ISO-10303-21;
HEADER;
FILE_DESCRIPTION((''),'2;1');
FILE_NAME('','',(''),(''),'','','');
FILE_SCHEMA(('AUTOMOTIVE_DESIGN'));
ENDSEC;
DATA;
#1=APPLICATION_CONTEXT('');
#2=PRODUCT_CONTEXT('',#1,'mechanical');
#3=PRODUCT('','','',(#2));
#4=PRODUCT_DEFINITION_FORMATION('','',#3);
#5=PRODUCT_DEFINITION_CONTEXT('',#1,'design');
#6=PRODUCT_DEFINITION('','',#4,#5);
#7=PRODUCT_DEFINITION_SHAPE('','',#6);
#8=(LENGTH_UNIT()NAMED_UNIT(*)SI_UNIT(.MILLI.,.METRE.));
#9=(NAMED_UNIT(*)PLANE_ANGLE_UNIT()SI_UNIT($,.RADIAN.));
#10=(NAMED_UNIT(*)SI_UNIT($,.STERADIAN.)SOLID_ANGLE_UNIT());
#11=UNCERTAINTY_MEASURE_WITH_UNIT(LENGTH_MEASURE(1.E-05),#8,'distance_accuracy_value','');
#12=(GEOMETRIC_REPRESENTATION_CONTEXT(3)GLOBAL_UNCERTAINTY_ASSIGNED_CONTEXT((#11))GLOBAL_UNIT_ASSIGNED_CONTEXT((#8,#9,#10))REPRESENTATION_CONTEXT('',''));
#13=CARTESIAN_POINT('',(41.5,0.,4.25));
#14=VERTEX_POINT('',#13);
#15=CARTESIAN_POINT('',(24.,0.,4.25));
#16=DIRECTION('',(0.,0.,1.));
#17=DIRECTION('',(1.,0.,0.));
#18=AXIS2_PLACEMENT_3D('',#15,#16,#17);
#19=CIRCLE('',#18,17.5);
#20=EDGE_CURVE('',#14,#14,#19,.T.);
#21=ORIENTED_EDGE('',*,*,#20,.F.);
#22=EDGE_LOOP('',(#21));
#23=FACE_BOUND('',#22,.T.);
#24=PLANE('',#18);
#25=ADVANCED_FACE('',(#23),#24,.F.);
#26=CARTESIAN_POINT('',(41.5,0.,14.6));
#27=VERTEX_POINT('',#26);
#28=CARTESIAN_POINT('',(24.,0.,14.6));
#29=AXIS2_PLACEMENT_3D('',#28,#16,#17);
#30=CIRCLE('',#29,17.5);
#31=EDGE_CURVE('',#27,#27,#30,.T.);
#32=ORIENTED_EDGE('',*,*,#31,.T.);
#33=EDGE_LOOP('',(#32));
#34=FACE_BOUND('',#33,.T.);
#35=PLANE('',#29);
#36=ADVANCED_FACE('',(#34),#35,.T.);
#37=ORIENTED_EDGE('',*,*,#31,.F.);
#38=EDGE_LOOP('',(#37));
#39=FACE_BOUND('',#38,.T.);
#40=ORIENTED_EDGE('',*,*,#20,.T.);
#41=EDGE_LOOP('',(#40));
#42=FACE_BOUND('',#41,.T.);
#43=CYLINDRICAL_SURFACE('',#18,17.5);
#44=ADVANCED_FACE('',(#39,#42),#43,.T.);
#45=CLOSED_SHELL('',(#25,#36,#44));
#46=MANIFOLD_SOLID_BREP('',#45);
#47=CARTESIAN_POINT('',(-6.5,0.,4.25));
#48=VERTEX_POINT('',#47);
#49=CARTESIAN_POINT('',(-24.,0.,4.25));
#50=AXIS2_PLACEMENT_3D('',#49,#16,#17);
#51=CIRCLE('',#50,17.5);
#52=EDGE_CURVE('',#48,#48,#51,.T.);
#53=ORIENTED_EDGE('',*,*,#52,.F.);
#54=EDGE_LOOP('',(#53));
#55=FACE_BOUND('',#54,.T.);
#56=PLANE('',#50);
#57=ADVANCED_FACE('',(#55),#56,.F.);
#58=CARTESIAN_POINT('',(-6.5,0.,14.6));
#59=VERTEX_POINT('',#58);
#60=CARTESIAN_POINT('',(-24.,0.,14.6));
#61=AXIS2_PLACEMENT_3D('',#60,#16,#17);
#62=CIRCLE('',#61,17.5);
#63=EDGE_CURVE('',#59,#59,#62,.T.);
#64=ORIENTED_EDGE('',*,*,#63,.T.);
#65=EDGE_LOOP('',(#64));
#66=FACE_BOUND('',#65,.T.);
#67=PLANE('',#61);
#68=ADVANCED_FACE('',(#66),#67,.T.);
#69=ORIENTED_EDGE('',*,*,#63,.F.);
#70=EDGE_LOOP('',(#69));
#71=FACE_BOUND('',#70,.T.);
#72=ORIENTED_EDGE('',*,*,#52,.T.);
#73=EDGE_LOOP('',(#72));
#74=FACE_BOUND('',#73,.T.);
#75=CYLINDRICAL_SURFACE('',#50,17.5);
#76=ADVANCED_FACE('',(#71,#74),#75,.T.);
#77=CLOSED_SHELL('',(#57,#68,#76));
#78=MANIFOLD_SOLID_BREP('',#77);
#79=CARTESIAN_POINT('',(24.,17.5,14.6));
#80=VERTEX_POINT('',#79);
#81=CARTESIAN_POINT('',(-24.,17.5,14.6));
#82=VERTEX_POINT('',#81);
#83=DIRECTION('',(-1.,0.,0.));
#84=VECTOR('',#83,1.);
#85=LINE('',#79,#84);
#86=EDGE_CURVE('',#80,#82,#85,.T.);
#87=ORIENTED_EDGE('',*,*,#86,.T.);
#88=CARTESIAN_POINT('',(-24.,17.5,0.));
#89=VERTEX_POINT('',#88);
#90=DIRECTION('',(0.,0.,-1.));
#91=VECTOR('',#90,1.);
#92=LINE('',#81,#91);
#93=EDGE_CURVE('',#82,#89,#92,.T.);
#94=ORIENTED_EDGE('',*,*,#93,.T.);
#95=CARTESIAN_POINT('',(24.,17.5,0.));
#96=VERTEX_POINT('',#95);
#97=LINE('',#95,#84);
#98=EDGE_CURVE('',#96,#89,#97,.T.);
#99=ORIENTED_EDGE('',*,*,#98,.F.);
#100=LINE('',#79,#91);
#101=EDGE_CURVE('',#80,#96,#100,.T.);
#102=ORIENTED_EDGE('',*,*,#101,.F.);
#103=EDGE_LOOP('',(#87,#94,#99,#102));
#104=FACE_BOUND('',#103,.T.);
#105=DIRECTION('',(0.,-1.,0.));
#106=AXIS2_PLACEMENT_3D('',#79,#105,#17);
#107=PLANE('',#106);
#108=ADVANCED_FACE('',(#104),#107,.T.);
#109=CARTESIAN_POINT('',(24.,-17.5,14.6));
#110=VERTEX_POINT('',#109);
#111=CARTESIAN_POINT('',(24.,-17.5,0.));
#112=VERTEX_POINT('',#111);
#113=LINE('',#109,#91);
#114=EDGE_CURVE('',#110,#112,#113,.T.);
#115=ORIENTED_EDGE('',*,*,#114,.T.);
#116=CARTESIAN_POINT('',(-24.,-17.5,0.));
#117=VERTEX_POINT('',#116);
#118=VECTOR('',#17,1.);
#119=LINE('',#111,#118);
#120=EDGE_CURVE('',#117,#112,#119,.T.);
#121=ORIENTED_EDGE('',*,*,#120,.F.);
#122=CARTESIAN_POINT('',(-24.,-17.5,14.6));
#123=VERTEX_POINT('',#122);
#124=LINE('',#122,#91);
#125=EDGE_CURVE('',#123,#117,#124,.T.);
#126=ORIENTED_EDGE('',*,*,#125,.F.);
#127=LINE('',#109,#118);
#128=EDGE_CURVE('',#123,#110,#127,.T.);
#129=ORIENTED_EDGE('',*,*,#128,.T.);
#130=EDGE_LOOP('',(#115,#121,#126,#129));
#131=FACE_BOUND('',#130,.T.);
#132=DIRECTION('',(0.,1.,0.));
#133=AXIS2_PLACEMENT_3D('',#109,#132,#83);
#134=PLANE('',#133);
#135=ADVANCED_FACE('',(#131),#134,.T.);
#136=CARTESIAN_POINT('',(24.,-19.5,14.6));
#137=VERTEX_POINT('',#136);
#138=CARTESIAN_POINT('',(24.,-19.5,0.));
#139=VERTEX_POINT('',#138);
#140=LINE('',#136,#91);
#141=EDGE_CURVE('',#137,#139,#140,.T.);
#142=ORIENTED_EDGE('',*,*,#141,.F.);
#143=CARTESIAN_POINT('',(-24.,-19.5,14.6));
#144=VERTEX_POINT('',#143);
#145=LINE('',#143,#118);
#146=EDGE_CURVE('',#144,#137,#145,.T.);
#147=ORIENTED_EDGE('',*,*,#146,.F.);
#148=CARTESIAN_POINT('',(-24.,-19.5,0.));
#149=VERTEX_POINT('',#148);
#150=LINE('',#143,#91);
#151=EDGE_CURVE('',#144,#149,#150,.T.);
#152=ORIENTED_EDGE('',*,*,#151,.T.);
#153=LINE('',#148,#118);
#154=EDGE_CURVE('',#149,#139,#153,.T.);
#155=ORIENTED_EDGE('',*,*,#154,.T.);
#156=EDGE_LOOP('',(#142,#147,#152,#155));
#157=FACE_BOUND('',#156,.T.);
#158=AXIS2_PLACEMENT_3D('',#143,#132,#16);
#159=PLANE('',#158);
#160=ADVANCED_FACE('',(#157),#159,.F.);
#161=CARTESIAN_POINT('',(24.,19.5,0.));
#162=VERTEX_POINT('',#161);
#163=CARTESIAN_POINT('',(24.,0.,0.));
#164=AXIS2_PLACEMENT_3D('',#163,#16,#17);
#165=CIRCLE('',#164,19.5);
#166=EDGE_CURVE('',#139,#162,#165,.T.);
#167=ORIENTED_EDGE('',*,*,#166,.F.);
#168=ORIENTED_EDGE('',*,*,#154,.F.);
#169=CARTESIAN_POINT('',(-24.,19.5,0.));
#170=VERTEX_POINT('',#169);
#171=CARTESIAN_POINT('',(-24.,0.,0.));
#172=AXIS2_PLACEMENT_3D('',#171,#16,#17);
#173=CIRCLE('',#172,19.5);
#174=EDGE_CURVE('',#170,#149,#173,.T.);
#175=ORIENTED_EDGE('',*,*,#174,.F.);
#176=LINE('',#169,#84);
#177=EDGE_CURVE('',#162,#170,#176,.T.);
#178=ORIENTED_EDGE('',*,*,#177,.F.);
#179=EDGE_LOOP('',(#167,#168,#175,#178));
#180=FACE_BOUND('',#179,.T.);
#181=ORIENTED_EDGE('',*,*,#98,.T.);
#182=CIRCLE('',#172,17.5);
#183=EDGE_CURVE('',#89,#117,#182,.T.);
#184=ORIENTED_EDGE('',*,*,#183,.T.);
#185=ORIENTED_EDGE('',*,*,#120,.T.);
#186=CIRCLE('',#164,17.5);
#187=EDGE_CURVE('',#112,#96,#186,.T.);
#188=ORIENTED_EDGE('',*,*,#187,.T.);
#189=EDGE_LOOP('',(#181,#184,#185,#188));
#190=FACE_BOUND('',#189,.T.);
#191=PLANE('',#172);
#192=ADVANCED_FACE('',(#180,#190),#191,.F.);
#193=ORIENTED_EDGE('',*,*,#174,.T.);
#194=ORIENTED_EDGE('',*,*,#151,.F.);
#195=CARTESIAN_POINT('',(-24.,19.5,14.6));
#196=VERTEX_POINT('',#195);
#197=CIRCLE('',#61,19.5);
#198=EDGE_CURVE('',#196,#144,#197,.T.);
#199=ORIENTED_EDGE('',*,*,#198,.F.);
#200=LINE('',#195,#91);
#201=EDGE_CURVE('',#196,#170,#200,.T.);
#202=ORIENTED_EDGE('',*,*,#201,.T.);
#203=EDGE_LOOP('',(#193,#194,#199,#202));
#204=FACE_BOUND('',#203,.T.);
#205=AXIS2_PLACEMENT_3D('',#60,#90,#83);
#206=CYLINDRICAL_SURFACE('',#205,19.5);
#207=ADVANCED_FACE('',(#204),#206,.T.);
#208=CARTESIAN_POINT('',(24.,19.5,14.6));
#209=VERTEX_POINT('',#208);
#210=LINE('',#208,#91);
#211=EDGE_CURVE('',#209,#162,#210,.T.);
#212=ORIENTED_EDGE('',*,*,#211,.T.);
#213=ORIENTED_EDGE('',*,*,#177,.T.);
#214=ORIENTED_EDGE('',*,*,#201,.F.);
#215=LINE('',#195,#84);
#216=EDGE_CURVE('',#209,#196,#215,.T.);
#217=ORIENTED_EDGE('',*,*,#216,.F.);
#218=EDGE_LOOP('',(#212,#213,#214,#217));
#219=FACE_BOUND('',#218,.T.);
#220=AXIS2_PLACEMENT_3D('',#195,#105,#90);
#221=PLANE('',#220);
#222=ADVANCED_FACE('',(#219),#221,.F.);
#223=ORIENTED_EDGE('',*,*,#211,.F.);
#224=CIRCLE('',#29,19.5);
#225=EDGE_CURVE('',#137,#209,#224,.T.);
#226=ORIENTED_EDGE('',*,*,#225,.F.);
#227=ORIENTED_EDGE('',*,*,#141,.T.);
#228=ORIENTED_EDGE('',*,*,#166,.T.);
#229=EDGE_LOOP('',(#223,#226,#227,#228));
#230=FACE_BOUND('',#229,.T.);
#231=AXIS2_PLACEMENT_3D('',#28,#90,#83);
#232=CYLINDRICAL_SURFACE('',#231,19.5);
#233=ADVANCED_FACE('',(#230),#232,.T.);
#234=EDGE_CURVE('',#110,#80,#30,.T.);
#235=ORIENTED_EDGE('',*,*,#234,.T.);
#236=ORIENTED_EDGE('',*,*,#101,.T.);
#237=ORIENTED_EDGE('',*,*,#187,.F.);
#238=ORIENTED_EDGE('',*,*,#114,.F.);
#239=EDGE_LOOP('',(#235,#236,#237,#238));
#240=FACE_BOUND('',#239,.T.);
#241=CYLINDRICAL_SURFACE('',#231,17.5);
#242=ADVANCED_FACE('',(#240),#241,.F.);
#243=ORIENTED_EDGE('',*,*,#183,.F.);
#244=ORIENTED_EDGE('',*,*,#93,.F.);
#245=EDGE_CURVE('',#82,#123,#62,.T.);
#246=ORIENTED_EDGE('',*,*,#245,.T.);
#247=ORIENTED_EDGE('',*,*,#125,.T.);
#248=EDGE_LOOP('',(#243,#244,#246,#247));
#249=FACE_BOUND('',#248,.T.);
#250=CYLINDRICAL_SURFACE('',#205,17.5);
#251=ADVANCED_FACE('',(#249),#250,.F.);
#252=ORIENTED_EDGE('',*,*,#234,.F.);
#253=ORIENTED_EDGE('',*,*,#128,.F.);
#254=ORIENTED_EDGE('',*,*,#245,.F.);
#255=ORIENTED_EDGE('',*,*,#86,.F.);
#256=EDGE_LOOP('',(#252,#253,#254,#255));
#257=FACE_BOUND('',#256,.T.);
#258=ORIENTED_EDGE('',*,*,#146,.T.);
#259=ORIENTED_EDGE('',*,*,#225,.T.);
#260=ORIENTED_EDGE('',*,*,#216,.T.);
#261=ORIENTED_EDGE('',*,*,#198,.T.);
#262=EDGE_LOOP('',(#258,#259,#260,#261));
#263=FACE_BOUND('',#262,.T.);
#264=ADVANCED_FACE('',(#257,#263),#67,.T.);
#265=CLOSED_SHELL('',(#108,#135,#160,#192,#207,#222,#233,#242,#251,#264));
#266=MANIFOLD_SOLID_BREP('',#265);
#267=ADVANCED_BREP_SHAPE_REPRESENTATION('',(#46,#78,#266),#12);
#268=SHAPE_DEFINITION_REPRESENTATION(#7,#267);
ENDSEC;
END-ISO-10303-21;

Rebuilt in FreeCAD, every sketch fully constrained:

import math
import FreeCAD as App
import Part
import Sketcher

V = App.Vector
Q = App.Units.Quantity

doc = App.newDocument("Part")
body = doc.addObject("PartDesign::Body", "Body")

# Sketch on XY plane
sketch1 = body.newObject("Sketcher::SketchObject", "Sketch")
sketch1.AttachmentSupport = (doc.getObject("XY_Plane"), [""])
sketch1.MapMode = "FlatFace"
sketch1.addGeometry(Part.LineSegment(V(24, 20, 0), V(-24, 20, 0)), False)
sketch1.addGeometry(Part.ArcOfCircle(Part.Circle(V(-24, 0, 0), V(0, 0, 1), 20), math.radians(90), math.radians(270)), False)
sketch1.addGeometry(Part.LineSegment(V(-24, -20, 0), V(24, -20, 0)), False)
sketch1.addGeometry(Part.ArcOfCircle(Part.Circle(V(24, 0, 0), V(0, 0, 1), 20), math.radians(-90), math.radians(90)), False)
sketch1.addGeometry(Part.ArcOfCircle(Part.Circle(V(24, 0, 0), V(0, 0, 1), 18), math.radians(-90), math.radians(90)), False)
sketch1.addGeometry(Part.LineSegment(V(24, -18, 0), V(-24, -18, 0)), False)
sketch1.addGeometry(Part.ArcOfCircle(Part.Circle(V(-24, 0, 0), V(0, 0, 1), 18), math.radians(90), math.radians(270)), False)
sketch1.addGeometry(Part.LineSegment(V(-24, 18, 0), V(24, 18, 0)), False)
sketch1.addConstraint(Sketcher.Constraint("Tangent", 0, 2, 1, 1))
sketch1.addConstraint(Sketcher.Constraint("Tangent", 1, 2, 2, 1))
sketch1.addConstraint(Sketcher.Constraint("Tangent", 2, 2, 3, 1))
sketch1.addConstraint(Sketcher.Constraint("Tangent", 3, 2, 0, 1))
sketch1.addConstraint(Sketcher.Constraint("Tangent", 4, 1, 5, 1))
sketch1.addConstraint(Sketcher.Constraint("Tangent", 5, 2, 6, 2))
sketch1.addConstraint(Sketcher.Constraint("Tangent", 6, 1, 7, 1))
sketch1.addConstraint(Sketcher.Constraint("Tangent", 7, 2, 4, 2))
sketch1.addConstraint(Sketcher.Constraint("Horizontal", 0))
sketch1.addConstraint(Sketcher.Constraint("Horizontal", 2))
sketch1.addConstraint(Sketcher.Constraint("Horizontal", 5))
sketch1.addConstraint(Sketcher.Constraint("Horizontal", 7))
sketch1.addConstraint(Sketcher.Constraint("Coincident", 4, 3, 3, 3))
sketch1.addConstraint(Sketcher.Constraint("Symmetric", 1, 3, 3, 3, -1, 1))
sketch1.addConstraint(Sketcher.Constraint("Vertical", 6, 3, 0, 2))
sketch1.addConstraint(Sketcher.Constraint("Radius", 1, Q("19.5 mm")))
sketch1.addConstraint(Sketcher.Constraint("Radius", 4, Q("17.5 mm")))
sketch1.addConstraint(Sketcher.Constraint("DistanceX", 0, 2, 0, 1, Q("48 mm")))
pad1 = body.newObject("PartDesign::Pad", "Pad")
pad1.Profile = sketch1
pad1.Length = 14.6
body2 = doc.addObject("PartDesign::Body", "Body001")

# Sketch on XY plane
sketch2 = body2.newObject("Sketcher::SketchObject", "Sketch001")
sketch2.AttachmentSupport = (doc.getObject("XY_Plane001"), [""])
sketch2.MapMode = "FlatFace"
sketch2.AttachmentOffset = App.Placement(V(0, 0, 14.6), App.Rotation())
sketch2.addGeometry(Part.Circle(V(-24, 0, 0), V(0, 0, 1), 18), False)
sketch2.addConstraint(Sketcher.Constraint("PointOnObject", 0, 3, -1))
sketch2.addConstraint(Sketcher.Constraint("Diameter", 0, Q("35 mm")))
sketch2.addConstraint(Sketcher.Constraint("DistanceX", 0, 3, -1, 1, Q("24 mm")))
pad2 = body2.newObject("PartDesign::Pad", "Pad001")
pad2.Profile = sketch2
pad2.Length = 10.35
pad2.Reversed = True
body3 = doc.addObject("PartDesign::Body", "Body002")

# Sketch on XY plane
sketch3 = body3.newObject("Sketcher::SketchObject", "Sketch002")
sketch3.AttachmentSupport = (doc.getObject("XY_Plane002"), [""])
sketch3.MapMode = "FlatFace"
sketch3.AttachmentOffset = App.Placement(V(0, 0, 14.6), App.Rotation())
sketch3.addGeometry(Part.Circle(V(24, 0, 0), V(0, 0, 1), 18), False)
sketch3.addConstraint(Sketcher.Constraint("PointOnObject", 0, 3, -1))
sketch3.addConstraint(Sketcher.Constraint("Diameter", 0, Q("35 mm")))
sketch3.addConstraint(Sketcher.Constraint("DistanceX", -1, 1, 0, 3, Q("24 mm")))
pad3 = body3.newObject("PartDesign::Pad", "Pad002")
pad3.Profile = sketch3
pad3.Length = 10.35
pad3.Reversed = True

doc.recompute()
